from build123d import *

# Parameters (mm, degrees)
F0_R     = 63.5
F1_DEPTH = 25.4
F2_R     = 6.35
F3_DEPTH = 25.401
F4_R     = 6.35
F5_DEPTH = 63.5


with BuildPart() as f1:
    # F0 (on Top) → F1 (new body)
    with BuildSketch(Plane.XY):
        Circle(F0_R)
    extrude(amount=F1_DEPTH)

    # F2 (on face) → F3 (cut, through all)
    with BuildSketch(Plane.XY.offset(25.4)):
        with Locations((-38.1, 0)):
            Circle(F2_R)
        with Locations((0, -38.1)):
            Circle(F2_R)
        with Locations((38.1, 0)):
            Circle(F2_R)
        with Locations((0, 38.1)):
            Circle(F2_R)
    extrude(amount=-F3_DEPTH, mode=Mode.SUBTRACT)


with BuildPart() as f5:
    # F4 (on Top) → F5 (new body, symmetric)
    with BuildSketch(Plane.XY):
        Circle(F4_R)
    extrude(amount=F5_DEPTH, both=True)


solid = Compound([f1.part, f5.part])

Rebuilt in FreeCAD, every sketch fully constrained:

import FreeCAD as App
import Part
import Sketcher
from FreeCAD import Vector
Q = App.Units.Quantity

doc = App.newDocument("Part")
body = doc.addObject("PartDesign::Body", "Body")

# Sketch on XY plane
sketch1 = body.newObject("Sketcher::SketchObject", "Sketch")
sketch1.AttachmentSupport = (doc.getObject("XY_Plane"), [""])
sketch1.MapMode = "FlatFace"
sketch1.addGeometry(Part.Circle(Vector(0, 0, 0), Vector(0, 0, 1), 64), False)
sketch1.addConstraint([
    Sketcher.Constraint("Coincident", 0, 3, -1, 1),
    Sketcher.Constraint("Diameter", 0, Q("5 in")),
])
pad1 = body.newObject("PartDesign::Pad", "Pad")
pad1.Profile = sketch1
pad1.Length = Q("1 in")

# Sketch on XY plane
sketch2 = body.newObject("Sketcher::SketchObject", "Sketch001")
sketch2.AttachmentSupport = (doc.getObject("XY_Plane"), [""])
sketch2.MapMode = "FlatFace"
sketch2.AttachmentOffset = App.Placement(Vector(0, 0, 1 * 25.4), App.Rotation())
sketch2.addGeometry([
    Part.Circle(Vector(-38, 0, 0), Vector(0, 0, 1), 6),
    Part.Circle(Vector(0, -38, 0), Vector(0, 0, 1), 6),
    Part.Circle(Vector(38, 0, 0), Vector(0, 0, 1), 6),
    Part.Circle(Vector(0, 38, 0), Vector(0, 0, 1), 6),
], False)
sketch2.addConstraint([
    Sketcher.Constraint("Equal", 0, 1),
    Sketcher.Constraint("Equal", 1, 2),
    Sketcher.Constraint("Equal", 2, 3),
    Sketcher.Constraint("Symmetric", 0, 3, 2, 3, -1, 1),
    Sketcher.Constraint("Symmetric", 1, 3, 3, 3, -1, 1),
    Sketcher.Constraint("PointOnObject", 0, 3, -1),
    Sketcher.Constraint("PointOnObject", 1, 3, -2),
    Sketcher.Constraint("Diameter", 0, Q("0.5 in")),
    Sketcher.Constraint("DistanceX", 0, 3, 2, 3, Q("3 in")),
    Sketcher.Constraint("DistanceY", 1, 3, 3, 3, Q("3 in")),
])
pocket1 = body.newObject("PartDesign::Pocket", "Pocket")
pocket1.Profile = sketch2
pocket1.Type = "ThroughAll"
body2 = doc.addObject("PartDesign::Body", "Body001")

# Sketch on XY plane
sketch3 = body2.newObject("Sketcher::SketchObject", "Sketch002")
sketch3.AttachmentSupport = (doc.getObject("XY_Plane001"), [""])
sketch3.MapMode = "FlatFace"
sketch3.addGeometry(Part.Circle(Vector(0, 0, 0), Vector(0, 0, 1), 6), False)
sketch3.addConstraint([
    Sketcher.Constraint("Coincident", 0, 3, -1, 1),
    Sketcher.Constraint("Diameter", 0, Q("0.5 in")),
])
pad2 = body2.newObject("PartDesign::Pad", "Pad001")
pad2.Profile = sketch3
pad2.Length = Q("5 in")
pad2.Midplane = True

doc.recompute()
